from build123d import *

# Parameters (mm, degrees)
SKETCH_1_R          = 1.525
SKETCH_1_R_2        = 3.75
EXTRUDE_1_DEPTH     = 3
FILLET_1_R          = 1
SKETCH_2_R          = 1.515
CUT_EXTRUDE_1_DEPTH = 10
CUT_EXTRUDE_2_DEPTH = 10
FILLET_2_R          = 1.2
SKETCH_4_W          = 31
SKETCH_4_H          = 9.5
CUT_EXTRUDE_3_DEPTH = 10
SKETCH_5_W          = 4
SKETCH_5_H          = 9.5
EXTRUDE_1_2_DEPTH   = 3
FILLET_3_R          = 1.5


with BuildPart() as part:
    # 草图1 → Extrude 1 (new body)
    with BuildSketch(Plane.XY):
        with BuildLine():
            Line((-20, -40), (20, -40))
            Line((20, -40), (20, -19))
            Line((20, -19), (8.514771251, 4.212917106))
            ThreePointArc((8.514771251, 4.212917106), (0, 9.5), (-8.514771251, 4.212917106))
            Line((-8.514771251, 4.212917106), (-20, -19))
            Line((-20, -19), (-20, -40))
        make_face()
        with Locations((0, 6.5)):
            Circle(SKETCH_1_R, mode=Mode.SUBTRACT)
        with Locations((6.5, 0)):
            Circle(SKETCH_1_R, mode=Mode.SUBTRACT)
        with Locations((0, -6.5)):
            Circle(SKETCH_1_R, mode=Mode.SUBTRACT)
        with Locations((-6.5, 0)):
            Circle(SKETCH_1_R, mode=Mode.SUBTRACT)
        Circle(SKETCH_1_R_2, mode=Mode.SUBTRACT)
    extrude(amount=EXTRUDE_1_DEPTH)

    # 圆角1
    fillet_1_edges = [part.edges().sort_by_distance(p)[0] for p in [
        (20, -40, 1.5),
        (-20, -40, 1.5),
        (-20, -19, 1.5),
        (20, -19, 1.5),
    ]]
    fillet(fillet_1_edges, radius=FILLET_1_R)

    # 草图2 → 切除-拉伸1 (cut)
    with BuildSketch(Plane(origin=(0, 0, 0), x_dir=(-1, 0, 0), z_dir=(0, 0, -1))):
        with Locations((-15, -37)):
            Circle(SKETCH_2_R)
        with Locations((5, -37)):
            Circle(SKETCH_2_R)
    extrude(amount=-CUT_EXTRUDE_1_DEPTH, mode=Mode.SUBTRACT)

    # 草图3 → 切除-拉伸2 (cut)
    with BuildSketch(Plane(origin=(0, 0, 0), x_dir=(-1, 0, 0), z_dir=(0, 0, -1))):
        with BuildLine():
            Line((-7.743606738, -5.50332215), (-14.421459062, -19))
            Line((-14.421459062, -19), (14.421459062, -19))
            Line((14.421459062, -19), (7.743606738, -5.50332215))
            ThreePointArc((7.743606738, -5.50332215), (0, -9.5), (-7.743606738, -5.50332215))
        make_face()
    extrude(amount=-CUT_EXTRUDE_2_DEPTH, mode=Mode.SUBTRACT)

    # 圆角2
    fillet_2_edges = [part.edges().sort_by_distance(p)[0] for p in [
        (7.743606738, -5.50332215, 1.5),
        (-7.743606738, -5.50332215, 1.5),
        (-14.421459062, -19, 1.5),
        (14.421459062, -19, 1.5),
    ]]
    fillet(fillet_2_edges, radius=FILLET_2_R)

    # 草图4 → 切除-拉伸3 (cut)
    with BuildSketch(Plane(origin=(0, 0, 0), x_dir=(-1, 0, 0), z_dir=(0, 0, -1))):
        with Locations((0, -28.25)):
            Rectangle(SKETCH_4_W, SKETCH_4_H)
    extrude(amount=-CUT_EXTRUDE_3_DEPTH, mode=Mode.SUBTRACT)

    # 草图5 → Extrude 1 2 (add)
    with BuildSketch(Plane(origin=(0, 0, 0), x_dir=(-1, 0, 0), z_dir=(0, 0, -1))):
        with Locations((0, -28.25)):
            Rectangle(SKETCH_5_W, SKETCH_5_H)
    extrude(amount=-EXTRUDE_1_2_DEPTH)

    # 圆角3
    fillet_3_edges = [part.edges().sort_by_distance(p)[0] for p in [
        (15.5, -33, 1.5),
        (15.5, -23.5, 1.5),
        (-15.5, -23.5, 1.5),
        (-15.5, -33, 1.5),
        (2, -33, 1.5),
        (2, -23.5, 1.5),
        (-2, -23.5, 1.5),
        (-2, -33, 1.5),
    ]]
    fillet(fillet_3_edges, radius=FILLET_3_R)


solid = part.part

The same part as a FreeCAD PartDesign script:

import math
import FreeCAD as App
import Part
import Sketcher

V = App.Vector
Q = App.Units.Quantity


def edges_at(feature, points):
    """Names of the edges that pass closest to the given points."""
    edges = feature.Shape.Edges
    near = lambda p: min(range(len(edges)), key=lambda i: edges[i].distToShape(Part.Vertex(*p))[0])
    return sorted({f"Edge{near(p) + 1}" for p in points})

doc = App.newDocument("Part")
body = doc.addObject("PartDesign::Body", "Body")

# Sketch on XY plane
sketch1 = body.newObject("Sketcher::SketchObject", "Sketch")
sketch1.AttachmentSupport = (doc.getObject("XY_Plane"), [""])
sketch1.MapMode = "FlatFace"
sketch1.addGeometry(Part.LineSegment(V(-20, -40, 0), V(20, -40, 0)), False)
sketch1.addGeometry(Part.LineSegment(V(20, -40, 0), V(20, -19, 0)), False)
sketch1.addGeometry(Part.LineSegment(V(20, -19, 0), V(8.5, 4.2, 0)), False)
sketch1.addGeometry(Part.ArcOfCircle(Part.Circle(V(0, 0, 0), V(0, 0, 1), 9.5), math.radians(26), math.radians(154)), False)
sketch1.addGeometry(Part.LineSegment(V(-8.5, 4.2, 0), V(-20, -19, 0)), False)
sketch1.addGeometry(Part.LineSegment(V(-20, -19, 0), V(-20, -40, 0)), False)
sketch1.addGeometry(Part.Circle(V(0, -6.5, 0), V(0, 0, 1), 1.5), False)
sketch1.addGeometry(Part.Circle(V(-6.5, 0, 0), V(0, 0, 1), 1.5), False)
sketch1.addGeometry(Part.Circle(V(0, 0, 0), V(0, 0, 1), 3.8), False)
sketch1.addGeometry(Part.Circle(V(6.5, 0, 0), V(0, 0, 1), 1.5), False)
sketch1.addGeometry(Part.Circle(V(0, 6.5, 0), V(0, 0, 1), 1.5), False)
sketch1.addConstraint(Sketcher.Constraint("Coincident", 0, 2, 1, 1))
sketch1.addConstraint(Sketcher.Constraint("Coincident", 1, 2, 2, 1))
sketch1.addConstraint(Sketcher.Constraint("Tangent", 2, 2, 3, 1))
sketch1.addConstraint(Sketcher.Constraint("Tangent", 3, 2, 4, 1))
sketch1.addConstraint(Sketcher.Constraint("Coincident", 4, 2, 5, 1))
sketch1.addConstraint(Sketcher.Constraint("Coincident", 5, 2, 0, 1))
sketch1.addConstraint(Sketcher.Constraint("Horizontal", 0))
sketch1.addConstraint(Sketcher.Constraint("Vertical", 1))
sketch1.addConstraint(Sketcher.Constraint("Vertical", 5))
sketch1.addConstraint(Sketcher.Constraint("Coincident", 3, 3, -1, 1))
sketch1.addConstraint(Sketcher.Constraint("Coincident", 8, 3, -1, 1))
sketch1.addConstraint(Sketcher.Constraint("Equal", 6, 7))
sketch1.addConstraint(Sketcher.Constraint("Equal", 7, 9))
sketch1.addConstraint(Sketcher.Constraint("Equal", 9, 10))
sketch1.addConstraint(Sketcher.Constraint("Symmetric", 7, 3, 9, 3, -1, 1))
sketch1.addConstraint(Sketcher.Constraint("Symmetric", 6, 3, 10, 3, -1, 1))
sketch1.addConstraint(Sketcher.Constraint("Symmetric", 1, 2, 4, 2, -2))
sketch1.addConstraint(Sketcher.Constraint("PointOnObject", 6, 3, -2))
sketch1.addConstraint(Sketcher.Constraint("PointOnObject", 7, 3, -1))
sketch1.addConstraint(Sketcher.Constraint("Diameter", 8, Q("7.5 mm")))
sketch1.addConstraint(Sketcher.Constraint("Radius", 3, Q("9.5 mm")))
sketch1.addConstraint(Sketcher.Constraint("Diameter", 6, Q("3.05 mm")))
sketch1.addConstraint(Sketcher.Constraint("DistanceX", 0, 1, 0, 2, Q("40 mm")))
sketch1.addConstraint(Sketcher.Constraint("DistanceY", 1, 1, 1, 2, Q("21 mm")))
sketch1.addConstraint(Sketcher.Constraint("DistanceY", 0, 2, -1, 1, Q("40 mm")))
sketch1.addConstraint(Sketcher.Constraint("DistanceX", 7, 3, 9, 3, Q("13 mm")))
sketch1.addConstraint(Sketcher.Constraint("DistanceY", 6, 3, 10, 3, Q("13 mm")))
pad1 = body.newObject("PartDesign::Pad", "Pad")
pad1.Profile = sketch1
pad1.Length = 3
doc.recompute()

fillet = body.newObject("PartDesign::Fillet", "Fillet")
fillet.Base = (pad1, edges_at(pad1, [
    (20, -40, 1.5),
    (-20, -40, 1.5),
    (-20, -19, 1.5),
    (20, -19, 1.5),
]))
fillet.Radius = 1

# Sketch on XY plane
sketch2 = body.newObject("Sketcher::SketchObject", "Sketch001")
sketch2.AttachmentSupport = (doc.getObject("XY_Plane"), [""])
sketch2.MapMode = "FlatFace"
sketch2.addGeometry(Part.Circle(V(15, -37, 0), V(0, 0, 1), 1.5), False)
sketch2.addGeometry(Part.Circle(V(-5, -37, 0), V(0, 0, 1), 1.5), False)
sketch2.addConstraint(Sketcher.Constraint("Equal", 0, 1))
sketch2.addConstraint(Sketcher.Constraint("Horizontal", 0, 3, 1, 3))
sketch2.addConstraint(Sketcher.Constraint("Diameter", 0, Q("3.03 mm")))
sketch2.addConstraint(Sketcher.Constraint("DistanceX", -1, 1, 0, 3, Q("15 mm")))
sketch2.addConstraint(Sketcher.Constraint("DistanceY", 0, 3, -1, 1, Q("37 mm")))
sketch2.addConstraint(Sketcher.Constraint("DistanceX", 1, 3, -1, 1, Q("5 mm")))
pocket1 = body.newObject("PartDesign::Pocket", "Pocket")
pocket1.Profile = sketch2
pocket1.Length = 10
pocket1.Reversed = True

# Sketch on XY plane
sketch3 = body.newObject("Sketcher::SketchObject", "Sketch002")
sketch3.AttachmentSupport = (doc.getObject("XY_Plane"), [""])
sketch3.MapMode = "FlatFace"
sketch3.addGeometry(Part.LineSegment(V(8, -6, 0), V(14, -19, 0)), False)
sketch3.addGeometry(Part.LineSegment(V(14, -19, 0), V(-14, -19, 0)), False)
sketch3.addGeometry(Part.LineSegment(V(-14, -19, 0), V(-8, -6, 0)), False)
sketch3.addGeometry(Part.ArcOfCircle(Part.Circle(V(0, 0, 0), V(0, 0, 1), 10), math.radians(-145), math.radians(-35)), False)
sketch3.addConstraint(Sketcher.Constraint("Coincident", 0, 2, 1, 1))
sketch3.addConstraint(Sketcher.Constraint("Coincident", 1, 2, 2, 1))
sketch3.addConstraint(Sketcher.Constraint("Coincident", 2, 2, 3, 1))
sketch3.addConstraint(Sketcher.Constraint("Coincident", 3, 2, 0, 1))
sketch3.addConstraint(Sketcher.Constraint("Horizontal", 1))
sketch3.addConstraint(Sketcher.Constraint("Coincident", 3, 3, -1, 1))
sketch3.addConstraint(Sketcher.Constraint("Horizontal", 2, 2, 3, 2))
sketch3.addConstraint(Sketcher.Constraint("Equal", 0, 2))
sketch3.addConstraint(Sketcher.Constraint("Radius", 3, Q("9.5 mm")))
sketch3.addConstraint(Sketcher.Constraint("DistanceY", 0, 2, -1, 1, Q("19 mm")))
sketch3.addConstraint(Sketcher.Constraint("DistanceX", 1, 2, 1, 1, Q("28.842918 mm")))
sketch3.addConstraint(Sketcher.Constraint("Distance", 0, Q("15.058354 mm")))
pocket2 = body.newObject("PartDesign::Pocket", "Pocket001")
pocket2.Profile = sketch3
pocket2.Length = 10
pocket2.Reversed = True
doc.recompute()

fillet2 = body.newObject("PartDesign::Fillet", "Fillet001")
fillet2.Base = (pocket2, edges_at(pocket2, [
    (7.744, -5.503, 1.5),
    (-7.744, -5.503, 1.5),
    (-14.421, -19, 1.5),
    (14.421, -19, 1.5),
]))
fillet2.Radius = 1.2

# Sketch on XY plane
sketch4 = body.newObject("Sketcher::SketchObject", "Sketch003")
sketch4.AttachmentSupport = (doc.getObject("XY_Plane"), [""])
sketch4.MapMode = "FlatFace"
sketch4.addGeometry(Part.LineSegment(V(16, -24, 0), V(16, -33, 0)), False)
sketch4.addGeometry(Part.LineSegment(V(16, -33, 0), V(-16, -33, 0)), False)
sketch4.addGeometry(Part.LineSegment(V(-16, -33, 0), V(-16, -24, 0)), False)
sketch4.addGeometry(Part.LineSegment(V(-16, -24, 0), V(16, -24, 0)), False)
sketch4.addConstraint(Sketcher.Constraint("Coincident", 0, 2, 1, 1))
sketch4.addConstraint(Sketcher.Constraint("Coincident", 1, 2, 2, 1))
sketch4.addConstraint(Sketcher.Constraint("Coincident", 2, 2, 3, 1))
sketch4.addConstraint(Sketcher.Constraint("Coincident", 3, 2, 0, 1))
sketch4.addConstraint(Sketcher.Constraint("Vertical", 0))
sketch4.addConstraint(Sketcher.Constraint("Horizontal", 1))
sketch4.addConstraint(Sketcher.Constraint("Vertical", 2))
sketch4.addConstraint(Sketcher.Constraint("Horizontal", 3))
sketch4.addConstraint(Sketcher.Constraint("DistanceX", 1, 2, 1, 1, Q("31 mm")))
sketch4.addConstraint(Sketcher.Constraint("DistanceY", 0, 2, 0, 1, Q("9.5 mm")))
sketch4.addConstraint(Sketcher.Constraint("DistanceY", 0, 2, -1, 1, Q("33 mm")))
sketch4.addConstraint(Sketcher.Constraint("DistanceX", -1, 1, 0, 2, Q("15.5 mm")))
pocket3 = body.newObject("PartDesign::Pocket", "Pocket002")
pocket3.Profile = sketch4
pocket3.Length = 10
pocket3.Reversed = True

# Sketch on XY plane
sketch5 = body.newObject("Sketcher::SketchObject", "Sketch004")
sketch5.AttachmentSupport = (doc.getObject("XY_Plane"), [""])
sketch5.MapMode = "FlatFace"
sketch5.addGeometry(Part.LineSegment(V(2, -23.5, 0), V(2, -33, 0)), False)
sketch5.addGeometry(Part.LineSegment(V(2, -33, 0), V(-2, -33, 0)), False)
sketch5.addGeometry(Part.LineSegment(V(-2, -33, 0), V(-2, -23.5, 0)), False)
sketch5.addGeometry(Part.LineSegment(V(-2, -23.5, 0), V(2, -23.5, 0)), False)
sketch5.addConstraint(Sketcher.Constraint("Coincident", 0, 2, 1, 1))
sketch5.addConstraint(Sketcher.Constraint("Coincident", 1, 2, 2, 1))
sketch5.addConstraint(Sketcher.Constraint("Coincident", 2, 2, 3, 1))
sketch5.addConstraint(Sketcher.Constraint("Coincident", 3, 2, 0, 1))
sketch5.addConstraint(Sketcher.Constraint("Vertical", 0))
sketch5.addConstraint(Sketcher.Constraint("Horizontal", 1))
sketch5.addConstraint(Sketcher.Constraint("Vertical", 2))
sketch5.addConstraint(Sketcher.Constraint("Horizontal", 3))
sketch5.addConstraint(Sketcher.Constraint("DistanceX", 1, 2, 1, 1, Q("4 mm")))
sketch5.addConstraint(Sketcher.Constraint("DistanceY", 0, 2, 0, 1, Q("9.5 mm")))
sketch5.addConstraint(Sketcher.Constraint("DistanceX", -1, 1, 0, 2, Q("2 mm")))
sketch5.addConstraint(Sketcher.Constraint("DistanceY", 0, 2, -1, 1, Q("33 mm")))
pad2 = body.newObject("PartDesign::Pad", "Pad001")
pad2.Profile = sketch5
pad2.Length = 3
doc.recompute()

fillet3 = body.newObject("PartDesign::Fillet", "Fillet002")
fillet3.Base = (pad2, edges_at(pad2, [
    (15.5, -33, 1.5),
    (15.5, -23.5, 1.5),
    (-15.5, -23.5, 1.5),
    (-15.5, -33, 1.5),
    (2, -33, 1.5),
    (2, -23.5, 1.5),
    (-2, -23.5, 1.5),
    (-2, -33, 1.5),
]))
fillet3.Radius = 1.5

doc.recompute()
